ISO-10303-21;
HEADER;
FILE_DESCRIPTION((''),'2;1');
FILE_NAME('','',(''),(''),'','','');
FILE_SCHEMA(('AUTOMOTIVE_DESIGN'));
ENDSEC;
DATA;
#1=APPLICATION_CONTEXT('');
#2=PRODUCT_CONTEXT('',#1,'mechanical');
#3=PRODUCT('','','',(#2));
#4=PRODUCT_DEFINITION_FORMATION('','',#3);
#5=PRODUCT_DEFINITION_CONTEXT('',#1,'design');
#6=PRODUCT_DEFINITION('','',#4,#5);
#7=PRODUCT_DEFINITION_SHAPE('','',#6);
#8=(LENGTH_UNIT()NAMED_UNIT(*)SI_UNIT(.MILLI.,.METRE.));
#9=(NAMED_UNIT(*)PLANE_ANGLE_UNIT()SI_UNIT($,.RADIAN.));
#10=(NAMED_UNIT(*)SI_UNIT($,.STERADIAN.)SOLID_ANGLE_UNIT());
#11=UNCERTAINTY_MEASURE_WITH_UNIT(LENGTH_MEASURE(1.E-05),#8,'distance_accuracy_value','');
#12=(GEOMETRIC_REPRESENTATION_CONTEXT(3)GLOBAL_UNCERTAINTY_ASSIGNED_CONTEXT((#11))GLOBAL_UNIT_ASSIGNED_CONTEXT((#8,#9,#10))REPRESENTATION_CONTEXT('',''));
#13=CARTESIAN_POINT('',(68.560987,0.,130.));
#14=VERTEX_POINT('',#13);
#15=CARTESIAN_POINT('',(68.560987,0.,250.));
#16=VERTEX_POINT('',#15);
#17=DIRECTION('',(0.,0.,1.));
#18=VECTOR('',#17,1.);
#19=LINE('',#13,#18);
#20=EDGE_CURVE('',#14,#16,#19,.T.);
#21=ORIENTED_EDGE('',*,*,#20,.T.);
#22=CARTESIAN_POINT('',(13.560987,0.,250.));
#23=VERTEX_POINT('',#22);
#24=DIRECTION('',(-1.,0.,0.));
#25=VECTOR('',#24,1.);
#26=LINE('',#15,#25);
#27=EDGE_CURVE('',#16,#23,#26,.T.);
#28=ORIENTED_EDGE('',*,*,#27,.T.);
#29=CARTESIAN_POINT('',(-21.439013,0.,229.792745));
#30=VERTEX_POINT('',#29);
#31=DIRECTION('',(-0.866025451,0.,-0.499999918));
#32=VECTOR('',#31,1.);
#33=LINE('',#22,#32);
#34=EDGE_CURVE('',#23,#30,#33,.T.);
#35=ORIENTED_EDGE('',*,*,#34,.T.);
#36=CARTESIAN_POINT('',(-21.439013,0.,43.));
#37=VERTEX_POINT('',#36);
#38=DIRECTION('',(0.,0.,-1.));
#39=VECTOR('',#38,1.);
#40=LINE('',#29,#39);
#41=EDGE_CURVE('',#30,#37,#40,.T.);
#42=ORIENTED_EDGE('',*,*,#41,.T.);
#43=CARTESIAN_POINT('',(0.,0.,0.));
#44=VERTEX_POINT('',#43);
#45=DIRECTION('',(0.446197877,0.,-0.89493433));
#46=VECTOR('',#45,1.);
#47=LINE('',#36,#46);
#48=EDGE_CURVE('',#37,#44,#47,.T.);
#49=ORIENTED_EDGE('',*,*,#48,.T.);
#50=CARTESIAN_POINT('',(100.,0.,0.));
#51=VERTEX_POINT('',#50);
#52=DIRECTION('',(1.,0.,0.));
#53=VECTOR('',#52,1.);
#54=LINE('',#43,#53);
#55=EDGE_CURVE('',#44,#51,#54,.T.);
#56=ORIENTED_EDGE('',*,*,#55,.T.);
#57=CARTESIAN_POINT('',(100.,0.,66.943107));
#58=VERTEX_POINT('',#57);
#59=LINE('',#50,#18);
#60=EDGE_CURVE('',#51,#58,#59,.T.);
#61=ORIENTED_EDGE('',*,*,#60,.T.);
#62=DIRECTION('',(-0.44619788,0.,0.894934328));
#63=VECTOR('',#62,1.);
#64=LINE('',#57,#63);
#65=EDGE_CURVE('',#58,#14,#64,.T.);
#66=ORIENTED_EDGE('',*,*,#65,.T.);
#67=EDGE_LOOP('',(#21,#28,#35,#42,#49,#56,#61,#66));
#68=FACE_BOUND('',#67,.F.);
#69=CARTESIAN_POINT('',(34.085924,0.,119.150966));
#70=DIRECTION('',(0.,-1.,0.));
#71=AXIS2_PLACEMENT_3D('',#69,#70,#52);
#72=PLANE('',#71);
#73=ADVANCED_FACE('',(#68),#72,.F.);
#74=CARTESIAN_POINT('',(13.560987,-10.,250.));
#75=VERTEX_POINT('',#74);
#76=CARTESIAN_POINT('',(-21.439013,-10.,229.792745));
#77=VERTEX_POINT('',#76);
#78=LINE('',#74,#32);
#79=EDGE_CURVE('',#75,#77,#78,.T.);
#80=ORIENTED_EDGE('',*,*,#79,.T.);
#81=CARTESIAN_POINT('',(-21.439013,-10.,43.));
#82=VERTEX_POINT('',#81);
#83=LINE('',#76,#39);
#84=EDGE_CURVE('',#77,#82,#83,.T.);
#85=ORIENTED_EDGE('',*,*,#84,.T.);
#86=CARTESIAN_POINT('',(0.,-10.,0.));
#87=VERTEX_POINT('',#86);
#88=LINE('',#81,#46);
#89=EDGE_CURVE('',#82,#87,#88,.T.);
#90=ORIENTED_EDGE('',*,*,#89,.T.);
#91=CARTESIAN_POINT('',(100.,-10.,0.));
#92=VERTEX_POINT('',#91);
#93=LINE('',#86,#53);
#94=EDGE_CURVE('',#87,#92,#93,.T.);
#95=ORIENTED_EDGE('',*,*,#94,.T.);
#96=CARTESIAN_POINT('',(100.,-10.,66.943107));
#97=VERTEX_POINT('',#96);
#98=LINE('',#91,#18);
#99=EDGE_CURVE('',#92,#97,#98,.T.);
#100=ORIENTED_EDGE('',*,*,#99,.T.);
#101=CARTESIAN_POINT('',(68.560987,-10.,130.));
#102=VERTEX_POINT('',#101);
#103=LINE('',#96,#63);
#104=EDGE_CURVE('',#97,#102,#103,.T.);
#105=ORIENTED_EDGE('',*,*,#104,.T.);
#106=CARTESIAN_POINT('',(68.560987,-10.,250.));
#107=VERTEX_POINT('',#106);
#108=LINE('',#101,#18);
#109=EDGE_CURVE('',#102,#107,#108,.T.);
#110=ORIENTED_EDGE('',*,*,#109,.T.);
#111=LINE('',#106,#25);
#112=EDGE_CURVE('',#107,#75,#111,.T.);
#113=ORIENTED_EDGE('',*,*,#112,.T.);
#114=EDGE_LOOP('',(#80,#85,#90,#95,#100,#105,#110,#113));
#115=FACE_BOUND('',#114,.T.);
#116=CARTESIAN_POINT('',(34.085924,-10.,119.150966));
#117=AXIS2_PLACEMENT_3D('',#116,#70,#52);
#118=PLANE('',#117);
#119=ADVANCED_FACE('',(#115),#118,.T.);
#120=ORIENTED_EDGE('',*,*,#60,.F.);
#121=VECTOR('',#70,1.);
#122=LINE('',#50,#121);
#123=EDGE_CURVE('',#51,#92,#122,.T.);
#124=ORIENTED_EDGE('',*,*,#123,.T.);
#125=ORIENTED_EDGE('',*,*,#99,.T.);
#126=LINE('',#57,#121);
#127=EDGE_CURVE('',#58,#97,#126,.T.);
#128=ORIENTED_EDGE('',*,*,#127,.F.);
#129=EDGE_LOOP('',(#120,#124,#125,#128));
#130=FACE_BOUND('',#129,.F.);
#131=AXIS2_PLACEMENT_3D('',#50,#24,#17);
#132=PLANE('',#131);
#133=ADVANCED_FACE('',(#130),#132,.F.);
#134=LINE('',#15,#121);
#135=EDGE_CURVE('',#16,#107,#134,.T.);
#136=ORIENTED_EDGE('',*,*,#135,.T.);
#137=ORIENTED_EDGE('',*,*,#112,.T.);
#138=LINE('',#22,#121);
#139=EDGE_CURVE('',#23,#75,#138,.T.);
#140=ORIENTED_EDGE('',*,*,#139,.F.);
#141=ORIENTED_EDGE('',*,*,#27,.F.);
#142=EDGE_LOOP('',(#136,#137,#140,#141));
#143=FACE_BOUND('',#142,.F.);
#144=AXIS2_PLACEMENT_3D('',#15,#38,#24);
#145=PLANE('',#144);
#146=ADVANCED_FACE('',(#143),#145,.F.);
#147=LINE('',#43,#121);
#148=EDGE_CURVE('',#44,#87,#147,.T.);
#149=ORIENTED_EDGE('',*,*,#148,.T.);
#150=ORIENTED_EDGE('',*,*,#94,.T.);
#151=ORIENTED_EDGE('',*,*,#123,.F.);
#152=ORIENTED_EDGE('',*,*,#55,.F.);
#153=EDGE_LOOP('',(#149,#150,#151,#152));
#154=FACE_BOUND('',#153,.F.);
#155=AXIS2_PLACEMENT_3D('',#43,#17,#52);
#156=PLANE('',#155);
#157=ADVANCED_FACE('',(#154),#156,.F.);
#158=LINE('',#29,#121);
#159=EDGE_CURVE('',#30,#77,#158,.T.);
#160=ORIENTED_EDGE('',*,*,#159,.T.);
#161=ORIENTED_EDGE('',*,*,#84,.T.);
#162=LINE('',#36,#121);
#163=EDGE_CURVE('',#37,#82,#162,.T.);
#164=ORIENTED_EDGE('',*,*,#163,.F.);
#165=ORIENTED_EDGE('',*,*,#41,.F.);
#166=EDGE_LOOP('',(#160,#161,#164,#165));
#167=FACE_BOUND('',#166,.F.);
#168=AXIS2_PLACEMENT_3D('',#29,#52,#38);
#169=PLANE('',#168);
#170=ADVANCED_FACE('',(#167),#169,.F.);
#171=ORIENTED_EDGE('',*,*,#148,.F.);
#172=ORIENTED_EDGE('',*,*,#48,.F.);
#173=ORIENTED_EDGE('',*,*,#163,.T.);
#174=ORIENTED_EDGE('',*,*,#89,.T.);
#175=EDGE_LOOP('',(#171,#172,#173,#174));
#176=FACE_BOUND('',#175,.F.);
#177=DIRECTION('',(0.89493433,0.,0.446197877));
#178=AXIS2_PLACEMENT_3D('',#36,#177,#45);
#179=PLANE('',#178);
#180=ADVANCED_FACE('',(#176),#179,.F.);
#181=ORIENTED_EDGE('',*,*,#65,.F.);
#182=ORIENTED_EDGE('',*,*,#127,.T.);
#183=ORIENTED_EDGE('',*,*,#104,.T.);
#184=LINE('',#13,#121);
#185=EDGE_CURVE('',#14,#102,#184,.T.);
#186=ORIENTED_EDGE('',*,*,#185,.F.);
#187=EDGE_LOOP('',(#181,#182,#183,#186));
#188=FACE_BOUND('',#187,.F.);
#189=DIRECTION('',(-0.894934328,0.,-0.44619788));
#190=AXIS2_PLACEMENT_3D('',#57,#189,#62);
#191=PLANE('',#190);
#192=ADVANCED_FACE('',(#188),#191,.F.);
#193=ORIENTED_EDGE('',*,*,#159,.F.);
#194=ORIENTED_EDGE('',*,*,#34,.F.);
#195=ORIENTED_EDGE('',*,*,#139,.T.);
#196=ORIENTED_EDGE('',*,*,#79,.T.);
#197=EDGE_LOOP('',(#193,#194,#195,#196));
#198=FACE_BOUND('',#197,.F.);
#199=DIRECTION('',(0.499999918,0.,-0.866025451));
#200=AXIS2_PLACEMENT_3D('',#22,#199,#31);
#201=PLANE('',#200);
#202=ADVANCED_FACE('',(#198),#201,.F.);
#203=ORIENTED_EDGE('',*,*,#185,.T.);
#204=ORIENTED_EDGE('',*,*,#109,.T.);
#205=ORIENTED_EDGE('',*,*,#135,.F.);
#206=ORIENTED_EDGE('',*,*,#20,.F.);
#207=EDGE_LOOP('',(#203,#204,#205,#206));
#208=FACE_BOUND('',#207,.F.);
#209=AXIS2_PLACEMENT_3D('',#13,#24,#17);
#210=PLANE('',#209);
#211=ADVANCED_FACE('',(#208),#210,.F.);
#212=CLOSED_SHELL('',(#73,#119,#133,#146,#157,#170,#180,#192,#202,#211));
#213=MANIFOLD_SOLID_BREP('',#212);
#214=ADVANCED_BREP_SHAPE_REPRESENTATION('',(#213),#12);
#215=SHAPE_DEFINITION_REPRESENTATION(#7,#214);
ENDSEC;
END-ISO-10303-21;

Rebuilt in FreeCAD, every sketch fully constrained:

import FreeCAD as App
import Part
import Sketcher

V = App.Vector
Q = App.Units.Quantity

doc = App.newDocument("Part")
body = doc.addObject("PartDesign::Body", "Body")

sketch1 = body.newObject("Sketcher::SketchObject", "Sketch")
sketch1.AttachmentSupport = (doc.getObject("XZ_Plane"), [""])
sketch1.MapMode = "FlatFace"
sketch1.addGeometry(Part.LineSegment(V(0, 0, 0), V(100, 0, 0)), False)
sketch1.addGeometry(Part.LineSegment(V(100, 0, 0), V(100, 66.943107, 0)), False)
sketch1.addGeometry(Part.LineSegment(V(100, 66.943107, 0), V(68.560987, 130, 0)), False)
sketch1.addGeometry(Part.LineSegment(V(68.560987, 130, 0), V(68.560987, 250, 0)), False)
sketch1.addGeometry(Part.LineSegment(V(68.560987, 250, 0), V(13.560987, 250, 0)), False)
sketch1.addGeometry(Part.LineSegment(V(13.560987, 250, 0), V(-21.439013, 229.792745, 0)), False)
sketch1.addGeometry(Part.LineSegment(V(-21.439013, 229.792745, 0), V(-21.439013, 43, 0)), False)
sketch1.addGeometry(Part.LineSegment(V(-21.439013, 43, 0), V(0, 0, 0)), False)
sketch1.addConstraint(Sketcher.Constraint("Coincident", 0, 2, 1, 1))
sketch1.addConstraint(Sketcher.Constraint("Coincident", 1, 2, 2, 1))
sketch1.addConstraint(Sketcher.Constraint("Coincident", 2, 2, 3, 1))
sketch1.addConstraint(Sketcher.Constraint("Coincident", 3, 2, 4, 1))
sketch1.addConstraint(Sketcher.Constraint("Coincident", 4, 2, 5, 1))
sketch1.addConstraint(Sketcher.Constraint("Coincident", 5, 2, 6, 1))
sketch1.addConstraint(Sketcher.Constraint("Coincident", 6, 2, 7, 1))
sketch1.addConstraint(Sketcher.Constraint("Coincident", 7, 2, 0, 1))
sketch1.addConstraint(Sketcher.Constraint("Horizontal", 0))
sketch1.addConstraint(Sketcher.Constraint("Vertical", 1))
sketch1.addConstraint(Sketcher.Constraint("Vertical", 3))
sketch1.addConstraint(Sketcher.Constraint("Horizontal", 4))
sketch1.addConstraint(Sketcher.Constraint("Vertical", 6))
sketch1.addConstraint(Sketcher.Constraint("Coincident", 7, 2, -1, 1))
sketch1.addConstraint(Sketcher.Constraint("Parallel", 2, 7))
sketch1.addConstraint(Sketcher.Constraint("DistanceX", 0, 1, 0, 2, Q("100 mm")))
sketch1.addConstraint(Sketcher.Constraint("DistanceX", 4, 2, 4, 1, Q("55 mm")))
sketch1.addConstraint(Sketcher.Constraint("DistanceY", 3, 1, 3, 2, Q("120 mm")))
sketch1.addConstraint(Sketcher.Constraint("Angle", 5, Q("-150.000005 deg")))
sketch1.addConstraint(Sketcher.Constraint("DistanceY", -1, 1, 2, 2, Q("130 mm")))
sketch1.addConstraint(Sketcher.Constraint("DistanceY", -1, 1, 6, 2, Q("43 mm")))
sketch1.addConstraint(Sketcher.Constraint("Angle", 2, Q("116.500004 deg")))
sketch1.addConstraint(Sketcher.Constraint("DistanceX", 5, 2, 4, 2, Q("35 mm")))
pad1 = body.newObject("PartDesign::Pad", "Pad")
pad1.Profile = sketch1
pad1.Length = 10

doc.recompute()
